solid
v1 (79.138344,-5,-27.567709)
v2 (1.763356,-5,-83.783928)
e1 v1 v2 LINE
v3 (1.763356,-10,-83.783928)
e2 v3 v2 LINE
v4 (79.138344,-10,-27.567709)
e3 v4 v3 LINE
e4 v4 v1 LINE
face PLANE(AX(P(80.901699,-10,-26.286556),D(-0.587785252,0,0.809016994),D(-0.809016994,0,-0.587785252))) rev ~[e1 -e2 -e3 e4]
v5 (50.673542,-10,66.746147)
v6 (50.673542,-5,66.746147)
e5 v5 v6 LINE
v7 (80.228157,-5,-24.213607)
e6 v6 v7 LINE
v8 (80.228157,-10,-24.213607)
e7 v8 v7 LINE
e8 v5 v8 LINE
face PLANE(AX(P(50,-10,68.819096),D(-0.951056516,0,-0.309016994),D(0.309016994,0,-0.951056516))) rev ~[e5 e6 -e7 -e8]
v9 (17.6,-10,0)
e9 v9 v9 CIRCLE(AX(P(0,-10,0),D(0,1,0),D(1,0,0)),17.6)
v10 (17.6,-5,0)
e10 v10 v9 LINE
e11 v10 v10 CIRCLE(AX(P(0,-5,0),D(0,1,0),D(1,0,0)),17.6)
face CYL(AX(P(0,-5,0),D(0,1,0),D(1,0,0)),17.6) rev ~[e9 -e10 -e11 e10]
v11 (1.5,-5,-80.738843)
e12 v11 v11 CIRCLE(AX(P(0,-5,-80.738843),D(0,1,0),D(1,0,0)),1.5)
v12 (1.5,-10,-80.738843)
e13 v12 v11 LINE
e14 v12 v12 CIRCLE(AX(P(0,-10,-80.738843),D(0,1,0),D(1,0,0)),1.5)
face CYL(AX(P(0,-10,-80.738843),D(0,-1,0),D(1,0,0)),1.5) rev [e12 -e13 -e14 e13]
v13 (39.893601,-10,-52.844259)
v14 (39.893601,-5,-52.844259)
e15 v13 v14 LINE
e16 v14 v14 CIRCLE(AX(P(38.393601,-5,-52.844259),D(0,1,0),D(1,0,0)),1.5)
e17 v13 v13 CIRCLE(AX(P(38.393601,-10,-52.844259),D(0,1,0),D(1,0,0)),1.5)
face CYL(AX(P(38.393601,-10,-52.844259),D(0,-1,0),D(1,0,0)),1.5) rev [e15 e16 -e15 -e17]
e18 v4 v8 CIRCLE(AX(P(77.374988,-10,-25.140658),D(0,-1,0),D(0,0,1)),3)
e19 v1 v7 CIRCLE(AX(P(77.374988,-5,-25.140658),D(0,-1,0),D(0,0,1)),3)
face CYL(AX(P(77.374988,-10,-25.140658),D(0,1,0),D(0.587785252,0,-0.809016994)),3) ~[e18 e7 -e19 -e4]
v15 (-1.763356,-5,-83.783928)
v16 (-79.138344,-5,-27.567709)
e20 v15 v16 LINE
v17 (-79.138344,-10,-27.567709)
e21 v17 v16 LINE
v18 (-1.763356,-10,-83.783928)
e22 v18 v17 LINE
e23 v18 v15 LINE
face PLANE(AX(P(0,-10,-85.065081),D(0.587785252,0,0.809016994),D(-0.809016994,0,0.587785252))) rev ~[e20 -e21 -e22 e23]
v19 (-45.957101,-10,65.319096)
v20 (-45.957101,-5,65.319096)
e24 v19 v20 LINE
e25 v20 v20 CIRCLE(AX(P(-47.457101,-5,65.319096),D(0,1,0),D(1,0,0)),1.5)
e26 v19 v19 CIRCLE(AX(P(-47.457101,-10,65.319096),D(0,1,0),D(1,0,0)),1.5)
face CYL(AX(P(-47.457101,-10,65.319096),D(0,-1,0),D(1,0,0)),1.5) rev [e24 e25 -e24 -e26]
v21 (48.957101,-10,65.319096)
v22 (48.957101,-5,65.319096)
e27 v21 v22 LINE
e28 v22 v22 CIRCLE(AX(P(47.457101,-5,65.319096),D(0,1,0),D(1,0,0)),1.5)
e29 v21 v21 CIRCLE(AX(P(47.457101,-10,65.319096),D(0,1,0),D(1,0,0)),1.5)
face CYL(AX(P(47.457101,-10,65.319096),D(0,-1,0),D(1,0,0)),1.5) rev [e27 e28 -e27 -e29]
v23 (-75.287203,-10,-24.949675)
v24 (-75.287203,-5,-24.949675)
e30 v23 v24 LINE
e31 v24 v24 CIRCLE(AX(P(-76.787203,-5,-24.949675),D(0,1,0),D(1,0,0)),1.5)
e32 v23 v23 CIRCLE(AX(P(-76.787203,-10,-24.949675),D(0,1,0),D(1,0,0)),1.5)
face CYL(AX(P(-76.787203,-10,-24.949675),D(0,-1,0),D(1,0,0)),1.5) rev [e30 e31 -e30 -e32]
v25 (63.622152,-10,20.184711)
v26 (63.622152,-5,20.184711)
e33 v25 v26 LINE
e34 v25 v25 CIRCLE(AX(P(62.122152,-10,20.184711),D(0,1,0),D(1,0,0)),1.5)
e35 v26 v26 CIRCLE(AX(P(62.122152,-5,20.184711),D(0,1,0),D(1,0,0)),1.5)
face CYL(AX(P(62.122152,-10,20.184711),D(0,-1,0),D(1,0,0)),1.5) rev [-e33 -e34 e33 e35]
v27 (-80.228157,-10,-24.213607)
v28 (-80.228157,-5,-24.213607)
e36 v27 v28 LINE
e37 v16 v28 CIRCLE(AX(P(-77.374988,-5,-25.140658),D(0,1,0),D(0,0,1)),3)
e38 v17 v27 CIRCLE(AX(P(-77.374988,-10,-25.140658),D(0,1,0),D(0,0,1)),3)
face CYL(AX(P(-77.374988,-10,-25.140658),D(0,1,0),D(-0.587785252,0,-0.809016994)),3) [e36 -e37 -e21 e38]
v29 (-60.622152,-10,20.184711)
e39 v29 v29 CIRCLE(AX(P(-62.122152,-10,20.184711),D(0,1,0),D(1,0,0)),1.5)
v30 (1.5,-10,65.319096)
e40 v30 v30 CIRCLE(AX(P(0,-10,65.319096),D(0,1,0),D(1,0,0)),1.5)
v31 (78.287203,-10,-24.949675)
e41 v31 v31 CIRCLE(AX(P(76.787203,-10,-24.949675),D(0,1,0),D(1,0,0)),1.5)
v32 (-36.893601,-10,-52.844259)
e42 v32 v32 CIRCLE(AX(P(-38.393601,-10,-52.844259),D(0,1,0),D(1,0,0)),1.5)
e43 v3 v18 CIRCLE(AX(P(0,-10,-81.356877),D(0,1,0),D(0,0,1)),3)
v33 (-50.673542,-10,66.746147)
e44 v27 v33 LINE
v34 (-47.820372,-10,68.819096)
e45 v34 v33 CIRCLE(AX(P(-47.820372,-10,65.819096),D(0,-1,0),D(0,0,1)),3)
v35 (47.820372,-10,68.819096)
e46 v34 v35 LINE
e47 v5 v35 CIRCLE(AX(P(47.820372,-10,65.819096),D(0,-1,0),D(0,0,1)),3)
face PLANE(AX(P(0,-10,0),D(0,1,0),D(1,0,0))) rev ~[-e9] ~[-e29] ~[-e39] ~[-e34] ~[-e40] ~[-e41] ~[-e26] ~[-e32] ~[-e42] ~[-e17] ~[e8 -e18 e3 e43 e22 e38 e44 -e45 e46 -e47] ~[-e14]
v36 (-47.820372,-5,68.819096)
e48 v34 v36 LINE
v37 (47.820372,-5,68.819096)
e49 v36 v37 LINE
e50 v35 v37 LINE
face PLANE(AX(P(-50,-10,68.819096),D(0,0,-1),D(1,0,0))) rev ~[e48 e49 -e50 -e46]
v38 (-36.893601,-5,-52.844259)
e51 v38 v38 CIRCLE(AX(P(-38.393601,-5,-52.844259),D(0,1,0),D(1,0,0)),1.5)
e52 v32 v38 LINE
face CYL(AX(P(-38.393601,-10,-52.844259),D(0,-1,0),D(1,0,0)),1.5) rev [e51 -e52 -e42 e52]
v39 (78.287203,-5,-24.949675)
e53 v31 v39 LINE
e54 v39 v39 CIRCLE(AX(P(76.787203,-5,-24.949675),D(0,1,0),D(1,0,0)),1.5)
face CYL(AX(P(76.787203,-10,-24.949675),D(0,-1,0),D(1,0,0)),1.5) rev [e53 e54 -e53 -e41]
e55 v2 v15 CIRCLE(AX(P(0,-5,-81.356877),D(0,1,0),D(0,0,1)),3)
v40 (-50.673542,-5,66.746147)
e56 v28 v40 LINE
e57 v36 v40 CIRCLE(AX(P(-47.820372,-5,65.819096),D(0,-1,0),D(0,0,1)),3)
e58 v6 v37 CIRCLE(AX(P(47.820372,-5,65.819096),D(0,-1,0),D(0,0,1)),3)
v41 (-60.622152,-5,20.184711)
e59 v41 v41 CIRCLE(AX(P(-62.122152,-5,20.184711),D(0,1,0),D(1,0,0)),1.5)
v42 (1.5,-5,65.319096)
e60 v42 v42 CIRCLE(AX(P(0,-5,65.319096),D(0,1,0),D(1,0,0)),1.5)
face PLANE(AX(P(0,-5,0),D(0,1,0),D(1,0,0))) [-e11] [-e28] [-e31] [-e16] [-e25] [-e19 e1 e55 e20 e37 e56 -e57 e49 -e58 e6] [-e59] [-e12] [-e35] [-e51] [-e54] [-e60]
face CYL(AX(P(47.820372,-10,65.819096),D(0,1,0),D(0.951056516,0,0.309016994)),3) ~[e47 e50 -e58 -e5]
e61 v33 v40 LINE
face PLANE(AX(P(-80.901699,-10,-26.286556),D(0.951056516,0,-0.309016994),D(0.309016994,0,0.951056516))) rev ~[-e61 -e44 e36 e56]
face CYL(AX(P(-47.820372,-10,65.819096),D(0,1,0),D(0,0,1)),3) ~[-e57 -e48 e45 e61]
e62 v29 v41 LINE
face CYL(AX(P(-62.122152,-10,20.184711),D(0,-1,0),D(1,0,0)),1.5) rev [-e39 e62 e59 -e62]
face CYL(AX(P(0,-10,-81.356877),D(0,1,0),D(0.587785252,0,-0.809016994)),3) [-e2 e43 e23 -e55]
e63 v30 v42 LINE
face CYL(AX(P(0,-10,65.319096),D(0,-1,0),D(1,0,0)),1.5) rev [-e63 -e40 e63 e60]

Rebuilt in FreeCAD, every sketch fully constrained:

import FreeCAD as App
import Part
import Sketcher
from FreeCAD import Vector
Q = App.Units.Quantity


def edges_at(feature, points):
    """Names of the edges that pass closest to the given points."""
    edges = feature.Shape.Edges
    near = lambda p: min(range(len(edges)), key=lambda i: edges[i].distToShape(Part.Vertex(*p))[0])
    return sorted({f"Edge{near(p) + 1}" for p in points})

doc = App.newDocument("Part")
body = doc.addObject("PartDesign::Body", "Body")

# Sketch on XZ plane
sketch1 = body.newObject("Sketcher::SketchObject", "Sketch")
sketch1.AttachmentSupport = (doc.getObject("XZ_Plane"), [""])
sketch1.MapMode = "FlatFace"
sketch1.AttachmentOffset = App.Placement(Vector(0, 0, 10), App.Rotation())
sketch1.addGeometry(Part.LineSegment(Vector(80.9, -26.3, 0), Vector(0, -85.1, 0)), False)
sketch1.addGeometry(Part.LineSegment(Vector(0, -85.1, 0), Vector(-80.9, -26.3, 0)), False)
sketch1.addGeometry(Part.LineSegment(Vector(-80.9, -26.3, 0), Vector(-50, 68.8, 0)), False)
sketch1.addGeometry(Part.LineSegment(Vector(-50, 68.8, 0), Vector(50, 68.8, 0)), False)
sketch1.addGeometry(Part.LineSegment(Vector(50, 68.8, 0), Vector(80.9, -26.3, 0)), False)
sketch1.addGeometry(Part.Circle(Vector(-47.5, 65.3, 0), Vector(0, 0, 1), 1.5), False)
sketch1.addGeometry(Part.Circle(Vector(-62.1, 20.2, 0), Vector(0, 0, 1), 1.5), False)
sketch1.addGeometry(Part.Circle(Vector(0, 65.3, 0), Vector(0, 0, 1), 1.5), False)
sketch1.addGeometry(Part.Circle(Vector(47.5, 65.3, 0), Vector(0, 0, 1), 1.5), False)
sketch1.addGeometry(Part.Circle(Vector(62.1, 20.2, 0), Vector(0, 0, 1), 1.5), False)
sketch1.addGeometry(Part.Circle(Vector(-76.8, -24.9, 0), Vector(0, 0, 1), 1.5), False)
sketch1.addGeometry(Part.Circle(Vector(-38.4, -52.8, 0), Vector(0, 0, 1), 1.5), False)
sketch1.addGeometry(Part.Circle(Vector(76.8, -24.9, 0), Vector(0, 0, 1), 1.5), False)
sketch1.addGeometry(Part.Circle(Vector(38.4, -52.8, 0), Vector(0, 0, 1), 1.5), False)
sketch1.addGeometry(Part.Circle(Vector(0, -80.7, 0), Vector(0, 0, 1), 1.5), False)
sketch1.addConstraint(Sketcher.Constraint("Coincident", 0, 2, 1, 1))
sketch1.addConstraint(Sketcher.Constraint("Coincident", 1, 2, 2, 1))
sketch1.addConstraint(Sketcher.Constraint("Coincident", 2, 2, 3, 1))
sketch1.addConstraint(Sketcher.Constraint("Coincident", 3, 2, 4, 1))
sketch1.addConstraint(Sketcher.Constraint("Coincident", 4, 2, 0, 1))
sketch1.addConstraint(Sketcher.Constraint("Horizontal", 3))
sketch1.addConstraint(Sketcher.Constraint("Equal", 5, 6))
sketch1.addConstraint(Sketcher.Constraint("Equal", 6, 7))
sketch1.addConstraint(Sketcher.Constraint("Equal", 7, 8))
sketch1.addConstraint(Sketcher.Constraint("Equal", 8, 9))
sketch1.addConstraint(Sketcher.Constraint("Equal", 9, 10))
sketch1.addConstraint(Sketcher.Constraint("Equal", 10, 11))
sketch1.addConstraint(Sketcher.Constraint("Equal", 11, 12))
sketch1.addConstraint(Sketcher.Constraint("Equal", 12, 13))
sketch1.addConstraint(Sketcher.Constraint("Equal", 13, 14))
sketch1.addConstraint(Sketcher.Constraint("Symmetric", 5, 3, 8, 3, -2))
sketch1.addConstraint(Sketcher.Constraint("Symmetric", 6, 3, 9, 3, -2))
sketch1.addConstraint(Sketcher.Constraint("Symmetric", 10, 3, 12, 3, -2))
sketch1.addConstraint(Sketcher.Constraint("Symmetric", 11, 3, 13, 3, -2))
sketch1.addConstraint(Sketcher.Constraint("Symmetric", 1, 2, 4, 2, -2))
sketch1.addConstraint(Sketcher.Constraint("PointOnObject", 7, 3, -2))
sketch1.addConstraint(Sketcher.Constraint("PointOnObject", 14, 3, -2))
sketch1.addConstraint(Sketcher.Constraint("PointOnObject", 0, 2, -2))
sketch1.addConstraint(Sketcher.Constraint("Horizontal", 5, 3, 7, 3))
sketch1.addConstraint(Sketcher.Constraint("Equal", 1, 2))
sketch1.addConstraint(Sketcher.Constraint("Equal", 2, 4))
sketch1.addConstraint(Sketcher.Constraint("Diameter", 5, Q("3 mm")))
sketch1.addConstraint(Sketcher.Constraint("DistanceX", 3, 1, 3, 2, Q("100 mm")))
sketch1.addConstraint(Sketcher.Constraint("Angle", 0, Q("-144 deg")))
sketch1.addConstraint(Sketcher.Constraint("Angle", 2, Q("72 deg")))
sketch1.addConstraint(Sketcher.Constraint("DistanceY", 5, 3, 2, 2, Q("3.5 mm")))
sketch1.addConstraint(Sketcher.Constraint("DistanceX", 5, 3, -1, 1, Q("47.457101 mm")))
sketch1.addConstraint(Sketcher.Constraint("DistanceX", 11, 3, -1, 1, Q("38.393601 mm")))
sketch1.addConstraint(Sketcher.Constraint("DistanceX", 10, 3, 5, 3, Q("29.330102 mm")))
sketch1.addConstraint(Sketcher.Constraint("DistanceX", 6, 3, -1, 1, Q("62.122152 mm")))
sketch1.addConstraint(Sketcher.Constraint("DistanceY", -1, 1, 6, 3, Q("20.184711 mm")))
sketch1.addConstraint(Sketcher.Constraint("DistanceY", 11, 3, -1, 1, Q("52.844259 mm")))
sketch1.addConstraint(Sketcher.Constraint("DistanceY", 0, 2, -1, 1, Q("85.065081 mm")))
sketch1.addConstraint(Sketcher.Constraint("DistanceY", 10, 3, 5, 3, Q("90.268771 mm")))
sketch1.addConstraint(Sketcher.Constraint("DistanceY", 14, 3, 10, 3, Q("55.789168 mm")))
pad1 = body.newObject("PartDesign::Pad", "Pad")
pad1.Profile = sketch1
pad1.Length = 5
pad1.Reversed = True

# Sketch on XZ plane
sketch2 = body.newObject("Sketcher::SketchObject", "Sketch001")
sketch2.AttachmentSupport = (doc.getObject("XZ_Plane"), [""])
sketch2.MapMode = "FlatFace"
sketch2.AttachmentOffset = App.Placement(Vector(0, 0, 5), App.Rotation())
sketch2.addGeometry(Part.Circle(Vector(0, 0, 0), Vector(0, 0, 1), 18), False)
sketch2.addConstraint(Sketcher.Constraint("Coincident", 0, 3, -1, 1))
sketch2.addConstraint(Sketcher.Constraint("Diameter", 0, Q("35.2 mm")))
pocket1 = body.newObject("PartDesign::Pocket", "Pocket")
pocket1.Profile = sketch2
pocket1.Length = 5
pocket1.Reversed = True
doc.recompute()

fillet = body.newObject("PartDesign::Fillet", "Fillet")
fillet.Base = (pocket1, edges_at(pocket1, [
    (50, -7.5, 68.819),
    (-50, -7.5, 68.819),
    (-80.902, -7.5, -26.287),
    (0, -7.5, -85.065),
    (80.902, -7.5, -26.287),
]))
fillet.Radius = 3

doc.recompute()
